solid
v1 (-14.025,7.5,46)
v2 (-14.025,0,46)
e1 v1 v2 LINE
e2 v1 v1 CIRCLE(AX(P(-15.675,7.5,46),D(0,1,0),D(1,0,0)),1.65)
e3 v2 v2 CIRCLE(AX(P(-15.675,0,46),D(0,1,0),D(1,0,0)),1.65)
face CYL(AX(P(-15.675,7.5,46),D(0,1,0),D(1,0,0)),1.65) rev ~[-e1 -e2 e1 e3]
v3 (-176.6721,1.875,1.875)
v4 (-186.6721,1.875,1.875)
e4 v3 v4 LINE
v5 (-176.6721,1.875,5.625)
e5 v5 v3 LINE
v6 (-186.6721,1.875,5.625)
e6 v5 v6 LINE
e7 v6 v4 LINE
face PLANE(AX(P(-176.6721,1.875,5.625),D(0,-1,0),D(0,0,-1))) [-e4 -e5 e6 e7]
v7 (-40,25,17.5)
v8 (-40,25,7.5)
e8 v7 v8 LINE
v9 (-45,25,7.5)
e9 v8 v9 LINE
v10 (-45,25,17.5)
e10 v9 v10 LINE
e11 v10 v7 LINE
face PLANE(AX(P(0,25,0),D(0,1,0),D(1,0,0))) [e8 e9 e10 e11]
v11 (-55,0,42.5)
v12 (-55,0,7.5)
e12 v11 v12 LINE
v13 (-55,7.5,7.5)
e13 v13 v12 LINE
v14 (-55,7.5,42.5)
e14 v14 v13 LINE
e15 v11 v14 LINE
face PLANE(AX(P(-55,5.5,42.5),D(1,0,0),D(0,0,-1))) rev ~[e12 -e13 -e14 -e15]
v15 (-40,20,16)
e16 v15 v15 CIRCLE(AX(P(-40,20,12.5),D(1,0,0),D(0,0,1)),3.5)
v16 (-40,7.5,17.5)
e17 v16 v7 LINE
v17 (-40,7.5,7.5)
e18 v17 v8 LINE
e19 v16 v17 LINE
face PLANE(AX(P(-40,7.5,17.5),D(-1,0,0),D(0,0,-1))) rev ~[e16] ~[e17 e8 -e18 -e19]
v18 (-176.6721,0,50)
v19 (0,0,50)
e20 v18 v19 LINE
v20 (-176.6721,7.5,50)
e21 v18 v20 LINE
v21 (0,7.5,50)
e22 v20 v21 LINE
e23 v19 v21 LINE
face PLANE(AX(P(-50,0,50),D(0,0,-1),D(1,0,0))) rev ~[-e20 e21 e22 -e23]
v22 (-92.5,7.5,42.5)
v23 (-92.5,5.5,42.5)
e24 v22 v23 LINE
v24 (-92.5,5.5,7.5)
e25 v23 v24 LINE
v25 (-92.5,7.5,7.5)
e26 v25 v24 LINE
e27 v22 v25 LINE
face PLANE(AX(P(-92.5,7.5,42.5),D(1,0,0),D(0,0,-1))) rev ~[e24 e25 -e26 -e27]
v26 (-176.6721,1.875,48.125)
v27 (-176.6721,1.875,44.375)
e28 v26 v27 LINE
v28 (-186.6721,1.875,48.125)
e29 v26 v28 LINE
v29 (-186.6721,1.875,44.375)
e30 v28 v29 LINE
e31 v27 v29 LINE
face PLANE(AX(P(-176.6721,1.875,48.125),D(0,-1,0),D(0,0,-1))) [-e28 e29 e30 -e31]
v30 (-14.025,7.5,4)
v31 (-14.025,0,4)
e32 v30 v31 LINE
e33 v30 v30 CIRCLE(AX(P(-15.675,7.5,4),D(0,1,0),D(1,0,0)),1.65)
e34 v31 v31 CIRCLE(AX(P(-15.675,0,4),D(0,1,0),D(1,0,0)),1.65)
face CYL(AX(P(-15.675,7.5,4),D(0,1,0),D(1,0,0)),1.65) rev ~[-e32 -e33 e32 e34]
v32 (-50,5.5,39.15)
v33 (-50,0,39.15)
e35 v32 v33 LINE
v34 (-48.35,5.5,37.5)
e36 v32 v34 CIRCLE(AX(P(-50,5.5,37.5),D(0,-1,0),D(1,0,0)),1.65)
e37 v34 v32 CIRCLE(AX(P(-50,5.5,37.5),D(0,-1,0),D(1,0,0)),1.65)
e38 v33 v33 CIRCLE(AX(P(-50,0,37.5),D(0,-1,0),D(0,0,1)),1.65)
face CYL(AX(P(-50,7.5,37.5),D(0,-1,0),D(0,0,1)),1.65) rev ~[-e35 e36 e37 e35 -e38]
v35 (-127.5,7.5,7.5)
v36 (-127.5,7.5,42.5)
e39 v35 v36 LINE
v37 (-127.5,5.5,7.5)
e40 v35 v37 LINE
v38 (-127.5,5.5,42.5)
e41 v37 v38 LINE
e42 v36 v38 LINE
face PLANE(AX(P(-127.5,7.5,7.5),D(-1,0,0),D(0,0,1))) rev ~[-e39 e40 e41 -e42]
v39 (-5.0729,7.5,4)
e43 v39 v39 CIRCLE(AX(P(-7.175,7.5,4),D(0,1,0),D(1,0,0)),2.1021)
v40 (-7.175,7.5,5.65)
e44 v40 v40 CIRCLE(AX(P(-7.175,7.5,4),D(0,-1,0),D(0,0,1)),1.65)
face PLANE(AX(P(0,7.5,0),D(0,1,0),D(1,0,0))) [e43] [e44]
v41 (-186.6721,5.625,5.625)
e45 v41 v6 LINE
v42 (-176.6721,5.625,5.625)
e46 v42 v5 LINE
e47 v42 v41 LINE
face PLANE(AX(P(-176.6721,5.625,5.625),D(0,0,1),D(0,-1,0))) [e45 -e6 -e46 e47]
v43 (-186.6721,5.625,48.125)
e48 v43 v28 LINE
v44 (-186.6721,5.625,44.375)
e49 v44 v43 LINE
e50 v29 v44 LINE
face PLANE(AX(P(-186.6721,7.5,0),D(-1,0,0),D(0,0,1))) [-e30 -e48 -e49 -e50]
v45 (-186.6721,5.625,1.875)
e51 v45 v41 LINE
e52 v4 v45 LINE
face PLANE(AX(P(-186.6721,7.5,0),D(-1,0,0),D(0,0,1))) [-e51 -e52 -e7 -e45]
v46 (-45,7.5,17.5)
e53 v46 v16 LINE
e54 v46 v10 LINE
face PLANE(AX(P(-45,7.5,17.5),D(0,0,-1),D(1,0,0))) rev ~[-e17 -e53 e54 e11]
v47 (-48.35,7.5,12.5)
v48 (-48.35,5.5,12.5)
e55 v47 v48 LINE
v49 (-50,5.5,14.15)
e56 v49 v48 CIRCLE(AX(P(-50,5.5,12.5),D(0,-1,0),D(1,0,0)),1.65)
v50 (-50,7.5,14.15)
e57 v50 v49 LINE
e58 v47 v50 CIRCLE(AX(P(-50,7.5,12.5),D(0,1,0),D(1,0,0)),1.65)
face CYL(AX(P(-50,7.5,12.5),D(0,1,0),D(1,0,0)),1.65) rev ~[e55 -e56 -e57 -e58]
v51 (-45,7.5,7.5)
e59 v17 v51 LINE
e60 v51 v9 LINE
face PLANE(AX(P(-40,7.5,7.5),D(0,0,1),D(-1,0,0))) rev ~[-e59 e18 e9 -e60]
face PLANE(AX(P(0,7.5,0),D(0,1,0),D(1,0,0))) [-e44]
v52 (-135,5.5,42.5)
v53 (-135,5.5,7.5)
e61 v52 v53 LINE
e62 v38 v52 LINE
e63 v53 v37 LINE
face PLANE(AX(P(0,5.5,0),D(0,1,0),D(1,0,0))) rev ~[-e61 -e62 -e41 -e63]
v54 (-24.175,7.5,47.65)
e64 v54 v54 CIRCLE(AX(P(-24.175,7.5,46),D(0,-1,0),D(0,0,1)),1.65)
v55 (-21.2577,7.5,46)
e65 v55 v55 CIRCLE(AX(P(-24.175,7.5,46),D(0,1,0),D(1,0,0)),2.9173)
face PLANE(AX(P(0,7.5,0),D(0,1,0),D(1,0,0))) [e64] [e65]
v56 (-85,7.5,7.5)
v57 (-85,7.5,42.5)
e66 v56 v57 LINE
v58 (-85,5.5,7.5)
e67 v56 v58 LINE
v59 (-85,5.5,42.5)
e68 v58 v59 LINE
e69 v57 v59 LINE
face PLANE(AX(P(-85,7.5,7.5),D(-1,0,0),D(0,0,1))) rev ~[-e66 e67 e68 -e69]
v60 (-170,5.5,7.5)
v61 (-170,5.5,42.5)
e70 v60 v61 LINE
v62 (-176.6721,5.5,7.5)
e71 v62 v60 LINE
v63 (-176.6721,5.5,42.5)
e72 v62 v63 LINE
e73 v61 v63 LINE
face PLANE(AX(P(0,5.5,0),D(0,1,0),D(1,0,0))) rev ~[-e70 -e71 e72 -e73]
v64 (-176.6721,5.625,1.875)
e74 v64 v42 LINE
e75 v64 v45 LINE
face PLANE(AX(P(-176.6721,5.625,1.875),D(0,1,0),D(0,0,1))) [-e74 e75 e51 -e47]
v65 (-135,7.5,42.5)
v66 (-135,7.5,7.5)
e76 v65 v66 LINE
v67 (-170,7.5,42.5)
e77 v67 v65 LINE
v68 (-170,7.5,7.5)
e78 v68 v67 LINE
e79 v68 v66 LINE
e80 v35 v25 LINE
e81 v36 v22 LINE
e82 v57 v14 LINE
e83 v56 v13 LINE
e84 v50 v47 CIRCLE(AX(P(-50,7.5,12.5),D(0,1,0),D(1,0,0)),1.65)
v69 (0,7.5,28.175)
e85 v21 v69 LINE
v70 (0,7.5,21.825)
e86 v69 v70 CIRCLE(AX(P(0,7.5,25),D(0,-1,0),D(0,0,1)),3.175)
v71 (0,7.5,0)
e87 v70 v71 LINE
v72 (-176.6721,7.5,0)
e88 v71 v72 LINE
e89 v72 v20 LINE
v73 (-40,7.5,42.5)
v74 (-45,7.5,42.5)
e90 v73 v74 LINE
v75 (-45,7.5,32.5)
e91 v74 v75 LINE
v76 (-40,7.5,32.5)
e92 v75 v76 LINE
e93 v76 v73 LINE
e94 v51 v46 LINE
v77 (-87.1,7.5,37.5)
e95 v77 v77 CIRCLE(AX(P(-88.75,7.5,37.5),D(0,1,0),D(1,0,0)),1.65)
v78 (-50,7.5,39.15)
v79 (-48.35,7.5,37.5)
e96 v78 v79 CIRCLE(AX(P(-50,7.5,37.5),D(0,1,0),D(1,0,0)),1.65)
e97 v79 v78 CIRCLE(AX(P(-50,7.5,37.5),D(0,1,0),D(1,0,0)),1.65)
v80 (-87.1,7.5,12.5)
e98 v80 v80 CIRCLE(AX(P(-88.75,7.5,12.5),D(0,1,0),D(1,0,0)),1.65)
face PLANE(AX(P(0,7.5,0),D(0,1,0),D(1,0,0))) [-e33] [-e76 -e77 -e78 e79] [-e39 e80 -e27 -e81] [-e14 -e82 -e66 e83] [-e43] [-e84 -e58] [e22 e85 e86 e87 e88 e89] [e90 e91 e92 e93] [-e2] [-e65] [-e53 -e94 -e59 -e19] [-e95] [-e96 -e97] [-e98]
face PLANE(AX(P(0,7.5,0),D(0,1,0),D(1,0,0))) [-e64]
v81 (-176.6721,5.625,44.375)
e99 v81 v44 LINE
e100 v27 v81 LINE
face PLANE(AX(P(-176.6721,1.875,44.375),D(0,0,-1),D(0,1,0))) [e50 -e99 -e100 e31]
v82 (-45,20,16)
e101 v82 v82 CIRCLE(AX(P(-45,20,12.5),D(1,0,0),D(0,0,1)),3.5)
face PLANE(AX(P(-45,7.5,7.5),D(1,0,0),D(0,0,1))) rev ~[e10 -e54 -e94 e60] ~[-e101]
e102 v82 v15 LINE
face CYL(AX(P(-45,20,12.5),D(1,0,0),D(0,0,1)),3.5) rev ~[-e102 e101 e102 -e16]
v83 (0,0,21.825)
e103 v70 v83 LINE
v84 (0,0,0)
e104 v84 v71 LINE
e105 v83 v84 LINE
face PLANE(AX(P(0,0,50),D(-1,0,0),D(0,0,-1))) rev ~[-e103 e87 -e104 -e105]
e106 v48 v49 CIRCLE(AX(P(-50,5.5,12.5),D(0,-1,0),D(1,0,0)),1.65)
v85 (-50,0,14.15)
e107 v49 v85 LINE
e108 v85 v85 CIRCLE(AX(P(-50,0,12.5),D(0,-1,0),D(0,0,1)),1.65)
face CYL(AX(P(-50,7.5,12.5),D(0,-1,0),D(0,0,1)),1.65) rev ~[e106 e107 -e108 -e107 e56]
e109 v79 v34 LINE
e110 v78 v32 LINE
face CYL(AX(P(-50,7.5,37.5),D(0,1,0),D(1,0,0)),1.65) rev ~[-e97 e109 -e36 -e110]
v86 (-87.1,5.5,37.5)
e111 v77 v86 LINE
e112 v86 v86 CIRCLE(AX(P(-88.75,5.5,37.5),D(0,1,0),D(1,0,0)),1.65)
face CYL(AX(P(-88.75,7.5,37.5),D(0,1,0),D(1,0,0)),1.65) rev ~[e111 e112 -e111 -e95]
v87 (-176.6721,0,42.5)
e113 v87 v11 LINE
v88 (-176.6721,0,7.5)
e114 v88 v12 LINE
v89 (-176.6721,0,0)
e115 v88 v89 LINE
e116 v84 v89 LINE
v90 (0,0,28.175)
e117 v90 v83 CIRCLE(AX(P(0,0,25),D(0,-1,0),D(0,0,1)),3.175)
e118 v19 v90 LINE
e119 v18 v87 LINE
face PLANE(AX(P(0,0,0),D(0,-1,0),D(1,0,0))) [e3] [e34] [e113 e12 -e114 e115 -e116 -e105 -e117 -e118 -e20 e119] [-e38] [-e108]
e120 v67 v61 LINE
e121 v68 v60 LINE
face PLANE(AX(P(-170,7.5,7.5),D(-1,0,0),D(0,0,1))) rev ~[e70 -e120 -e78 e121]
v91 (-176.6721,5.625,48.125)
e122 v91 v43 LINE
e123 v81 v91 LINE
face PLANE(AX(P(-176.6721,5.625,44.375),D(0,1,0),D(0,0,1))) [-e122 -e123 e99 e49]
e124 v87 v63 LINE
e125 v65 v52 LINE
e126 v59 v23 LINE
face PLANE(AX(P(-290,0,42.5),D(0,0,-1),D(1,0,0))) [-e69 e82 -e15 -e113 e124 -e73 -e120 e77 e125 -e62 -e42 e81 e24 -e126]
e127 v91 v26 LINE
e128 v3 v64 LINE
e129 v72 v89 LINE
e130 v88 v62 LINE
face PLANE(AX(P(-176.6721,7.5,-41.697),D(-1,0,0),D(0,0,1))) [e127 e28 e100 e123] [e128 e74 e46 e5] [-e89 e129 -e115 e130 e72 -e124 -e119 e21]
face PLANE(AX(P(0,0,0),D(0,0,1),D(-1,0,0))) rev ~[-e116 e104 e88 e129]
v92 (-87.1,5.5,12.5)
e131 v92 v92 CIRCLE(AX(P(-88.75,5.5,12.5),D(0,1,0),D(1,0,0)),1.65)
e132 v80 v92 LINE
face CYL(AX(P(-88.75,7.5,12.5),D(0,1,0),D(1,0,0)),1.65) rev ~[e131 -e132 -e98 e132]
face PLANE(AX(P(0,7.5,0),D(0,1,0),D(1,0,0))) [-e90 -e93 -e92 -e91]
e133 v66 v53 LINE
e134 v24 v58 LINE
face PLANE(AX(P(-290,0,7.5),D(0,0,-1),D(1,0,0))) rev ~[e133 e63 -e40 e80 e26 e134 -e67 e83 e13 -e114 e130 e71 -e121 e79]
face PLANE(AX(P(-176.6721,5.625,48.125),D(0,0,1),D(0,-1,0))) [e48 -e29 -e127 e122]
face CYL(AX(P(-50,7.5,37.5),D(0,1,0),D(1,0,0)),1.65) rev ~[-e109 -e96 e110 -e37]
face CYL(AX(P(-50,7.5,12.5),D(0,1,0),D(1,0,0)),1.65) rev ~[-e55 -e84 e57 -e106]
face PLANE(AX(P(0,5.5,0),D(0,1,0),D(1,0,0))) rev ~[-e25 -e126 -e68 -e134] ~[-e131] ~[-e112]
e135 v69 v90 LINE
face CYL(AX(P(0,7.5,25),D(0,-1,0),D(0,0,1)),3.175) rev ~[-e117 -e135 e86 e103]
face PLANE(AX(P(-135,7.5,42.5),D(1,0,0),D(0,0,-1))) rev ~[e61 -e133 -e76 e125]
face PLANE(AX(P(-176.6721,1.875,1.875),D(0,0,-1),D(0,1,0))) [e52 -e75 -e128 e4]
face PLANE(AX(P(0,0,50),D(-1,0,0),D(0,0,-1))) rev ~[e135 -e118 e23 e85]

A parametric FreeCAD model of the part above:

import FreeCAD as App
import Part
import Sketcher


def edges_at(feature, points):
    """Names of the edges that pass closest to the given points."""
    edges = feature.Shape.Edges
    near = lambda p: min(range(len(edges)), key=lambda i: edges[i].distToShape(Part.Vertex(*p))[0])
    return sorted({f"Edge{near(p) + 1}" for p in points})


def add_polygon(sketch, points):
    """Adds a closed chain of lines whose ends are joined by coincident constraints."""
    first, n = sketch.GeometryCount, len(points)
    for a, b in zip(points, points[1:] + points[:1]):
        sketch.addGeometry(Part.LineSegment(App.Vector(*a, 0), App.Vector(*b, 0)), False)
    for i in range(n):
        sketch.addConstraint(Sketcher.Constraint("Coincident", first + i, 2, first + (i + 1) % n, 1))

doc = App.newDocument("Part")
body = doc.addObject("PartDesign::Body", "Body")

# Sketch on XZ plane
sketch1 = doc.addObject("Sketcher::SketchObject", "Sketch")
body.addObject(sketch1)
sketch1.AttachmentSupport = (doc.XZ_Plane, [""])
sketch1.MapMode = "FlatFace"
add_polygon(sketch1, [(0, 50), (0, 0), (-290, 0), (-290, 8), (-50, 8), (-50, 42), (-290, 42), (-290, 50)])  # lines 0-7
sketch1.addConstraint(Sketcher.Constraint("Vertical", 0))
sketch1.addConstraint(Sketcher.Constraint("Horizontal", 1))
sketch1.addConstraint(Sketcher.Constraint("Vertical", 2))
sketch1.addConstraint(Sketcher.Constraint("Horizontal", 3))
sketch1.addConstraint(Sketcher.Constraint("Vertical", 4))
sketch1.addConstraint(Sketcher.Constraint("Horizontal", 5))
sketch1.addConstraint(Sketcher.Constraint("Vertical", 6))
sketch1.addConstraint(Sketcher.Constraint("Horizontal", 7))
sketch1.addConstraint(Sketcher.Constraint("Coincident", 0, 2, -1, 1))
sketch1.addConstraint(Sketcher.Constraint("Vertical", 2, 2, 5, 2))
sketch1.addConstraint(Sketcher.Constraint("Equal", 2, 6))
sketch1.addConstraint(Sketcher.Constraint("DistanceX", 3, 1, 3, 2, 240.0))
sketch1.addConstraint(Sketcher.Constraint("DistanceY", 0, 2, 0, 1, 50.0))
sketch1.addConstraint(Sketcher.Constraint("DistanceY", 2, 1, 2, 2, 7.5))
sketch1.addConstraint(Sketcher.Constraint("DistanceX", 3, 2, -1, 1, 50.0))
pad1 = doc.addObject("PartDesign::Pad", "Pad")
body.addObject(pad1)
pad1.Profile = sketch1
pad1.Length = 7.5
pad1.Reversed = True

# Sketch on XZ plane
sketch2 = doc.addObject("Sketcher::SketchObject", "Sketch001")
body.addObject(sketch2)
sketch2.AttachmentSupport = (doc.XZ_Plane, [""])
sketch2.MapMode = "FlatFace"
sketch2.AttachmentOffset = App.Placement(App.Vector(0, 0, -7.5), App.Rotation())
sketch2.addGeometry(Part.Circle(App.Vector(0, 25, 0), App.Vector(0, 0, 1), 3.2), False)
sketch2.addConstraint(Sketcher.Constraint("PointOnObject", 0, 3, -2))
sketch2.addConstraint(Sketcher.Constraint("Diameter", 0, 6.35))
sketch2.addConstraint(Sketcher.Constraint("DistanceY", -1, 1, 0, 3, 25.0))
doc.recompute()
hole = doc.addObject("PartDesign::Hole", "Hole")
body.addObject(hole)
hole.Profile = sketch2
hole.ThreadType = "None"
hole.Diameter = 6.35
hole.DepthType = "ThroughAll"
hole.Reversed = True

# Sketch on XZ plane
sketch3 = doc.addObject("Sketcher::SketchObject", "Sketch002")
body.addObject(sketch3)
sketch3.AttachmentSupport = (doc.XZ_Plane, [""])
sketch3.MapMode = "FlatFace"
sketch3.AttachmentOffset = App.Placement(App.Vector(0, 0, -7.5), App.Rotation())
sketch3.addGeometry(Part.Circle(App.Vector(-7.2, 4, 0), App.Vector(0, 0, 1), 1.6), False)
sketch3.addGeometry(Part.Circle(App.Vector(-24.2, 46, 0), App.Vector(0, 0, 1), 1.6), False)
sketch3.addConstraint(Sketcher.Constraint("Equal", 0, 1))
sketch3.addConstraint(Sketcher.Constraint("Diameter", 0, 3.3))
sketch3.addConstraint(Sketcher.Constraint("DistanceY", -1, 1, 0, 3, 4.0))
sketch3.addConstraint(Sketcher.Constraint("DistanceY", -1, 1, 1, 3, 46.0))
sketch3.addConstraint(Sketcher.Constraint("DistanceX", 1, 3, 0, 3, 17.0))
sketch3.addConstraint(Sketcher.Constraint("DistanceX", 0, 3, -1, 1, 7.175))
doc.recompute()
hole2 = doc.addObject("PartDesign::Hole", "Hole001")
body.addObject(hole2)
hole2.Profile = sketch3
hole2.ThreadType = "None"
hole2.Diameter = 3.3
hole2.DepthType = "ThroughAll"
hole2.Reversed = True

# Sketch on XZ plane
sketch4 = doc.addObject("Sketcher::SketchObject", "Sketch003")
body.addObject(sketch4)
sketch4.AttachmentSupport = (doc.XZ_Plane, [""])
sketch4.MapMode = "FlatFace"
sketch4.AttachmentOffset = App.Placement(App.Vector(0, 0, -7.5), App.Rotation())
add_polygon(sketch4, [(-40, 32), (-45, 32), (-45, 42), (-40, 42)])  # lines 0-3
sketch4.addConstraint(Sketcher.Constraint("Horizontal", 0))
sketch4.addConstraint(Sketcher.Constraint("Vertical", 1))
sketch4.addConstraint(Sketcher.Constraint("Horizontal", 2))
sketch4.addConstraint(Sketcher.Constraint("Vertical", 3))
sketch4.addConstraint(Sketcher.Constraint("DistanceX", 0, 2, 0, 1, 5.0))
sketch4.addConstraint(Sketcher.Constraint("DistanceY", 1, 1, 1, 2, 10.0))
sketch4.addConstraint(Sketcher.Constraint("DistanceX", 0, 2, -1, 1, 45.0))
sketch4.addConstraint(Sketcher.Constraint("DistanceY", -1, 1, 0, 2, 32.5))
pad2 = doc.addObject("PartDesign::Pad", "Pad001")
body.addObject(pad2)
pad2.Profile = sketch4
pad2.Length = 17.5
pad2.Reversed = True

# Sketch on XZ plane
sketch5 = doc.addObject("Sketcher::SketchObject", "Sketch004")
body.addObject(sketch5)
sketch5.AttachmentSupport = (doc.XZ_Plane, [""])
sketch5.MapMode = "FlatFace"
sketch5.AttachmentOffset = App.Placement(App.Vector(0, 0, -7.5), App.Rotation())
add_polygon(sketch5, [(-85, 42), (-85, 8), (-92, 8), (-92, 42)])  # lines 0-3
add_polygon(sketch5, [(-128, 42), (-128, 8), (-135, 8), (-135, 42)])  # lines 4-7
add_polygon(sketch5, [(-212, 8), (-220, 8), (-220, 42), (-212, 42)])  # lines 8-11
add_polygon(sketch5, [(-170, 8), (-178, 8), (-178, 42), (-170, 42)])  # lines 12-15
sketch5.addConstraint(Sketcher.Constraint("Vertical", 0))
sketch5.addConstraint(Sketcher.Constraint("Horizontal", 1))
sketch5.addConstraint(Sketcher.Constraint("Vertical", 2))
sketch5.addConstraint(Sketcher.Constraint("Horizontal", 3))
sketch5.addConstraint(Sketcher.Constraint("Vertical", 4))
sketch5.addConstraint(Sketcher.Constraint("Horizontal", 5))
sketch5.addConstraint(Sketcher.Constraint("Vertical", 6))
sketch5.addConstraint(Sketcher.Constraint("Horizontal", 7))
sketch5.addConstraint(Sketcher.Constraint("Horizontal", 8))
sketch5.addConstraint(Sketcher.Constraint("Vertical", 9))
sketch5.addConstraint(Sketcher.Constraint("Horizontal", 10))
sketch5.addConstraint(Sketcher.Constraint("Vertical", 11))
sketch5.addConstraint(Sketcher.Constraint("Horizontal", 12))
sketch5.addConstraint(Sketcher.Constraint("Vertical", 13))
sketch5.addConstraint(Sketcher.Constraint("Horizontal", 14))
sketch5.addConstraint(Sketcher.Constraint("Vertical", 15))
sketch5.addConstraint(Sketcher.Constraint("Horizontal", 1, 2, 4, 2))
sketch5.addConstraint(Sketcher.Constraint("Horizontal", 3, 2, 6, 2))
sketch5.addConstraint(Sketcher.Constraint("Horizontal", 5, 2, 8, 2))
sketch5.addConstraint(Sketcher.Constraint("Horizontal", 7, 2, 9, 2))
sketch5.addConstraint(Sketcher.Constraint("Horizontal", 11, 2, 12, 2))
sketch5.addConstraint(Sketcher.Constraint("Horizontal", 10, 2, 13, 2))
sketch5.addConstraint(Sketcher.Constraint("Equal", 3, 5))
sketch5.addConstraint(Sketcher.Constraint("Equal", 7, 8))
sketch5.addConstraint(Sketcher.Constraint("Equal", 10, 12))
sketch5.addConstraint(Sketcher.Constraint("DistanceY", 0, 2, 0, 1, 35.0))
sketch5.addConstraint(Sketcher.Constraint("DistanceX", 4, 2, 1, 2, 35.0))
sketch5.addConstraint(Sketcher.Constraint("DistanceX", 11, 2, 12, 2, 35.0))
sketch5.addConstraint(Sketcher.Constraint("DistanceX", 14, 2, 6, 2, 35.0))
sketch5.addConstraint(Sketcher.Constraint("DistanceX", 1, 2, 1, 1, 7.5))
sketch5.addConstraint(Sketcher.Constraint("DistanceX", 0, 2, -1, 1, 85.0))
sketch5.addConstraint(Sketcher.Constraint("DistanceY", -1, 1, 0, 2, 7.5))
pad3 = doc.addObject("PartDesign::Pad", "Pad002")
body.addObject(pad3)
pad3.Profile = sketch5
pad3.Length = 2

# Sketch on XZ plane
sketch6 = doc.addObject("Sketcher::SketchObject", "Sketch005")
body.addObject(sketch6)
sketch6.AttachmentSupport = (doc.XZ_Plane, [""])
sketch6.MapMode = "FlatFace"
sketch6.AttachmentOffset = App.Placement(App.Vector(0, 0, -7.5), App.Rotation())
add_polygon(sketch6, [(-280, 0), (-290, 0), (-290, 50), (-280, 50)])  # lines 0-3
sketch6.addConstraint(Sketcher.Constraint("Horizontal", 0))
sketch6.addConstraint(Sketcher.Constraint("Vertical", 1))
sketch6.addConstraint(Sketcher.Constraint("Horizontal", 2))
sketch6.addConstraint(Sketcher.Constraint("Vertical", 3))
sketch6.addConstraint(Sketcher.Constraint("PointOnObject", 0, 2, -1))
sketch6.addConstraint(Sketcher.Constraint("DistanceX", 0, 2, 0, 1, 10.0))
sketch6.addConstraint(Sketcher.Constraint("DistanceY", 1, 1, 1, 2, 50.0))
sketch6.addConstraint(Sketcher.Constraint("DistanceX", 0, 2, -1, 1, 290.0))
pocket1 = doc.addObject("PartDesign::Pocket", "Pocket")
body.addObject(pocket1)
pocket1.Profile = sketch6
pocket1.Length = 7.5
pocket1.Reversed = True

# Sketch on YZ plane
sketch7 = doc.addObject("Sketcher::SketchObject", "Sketch006")
body.addObject(sketch7)
sketch7.AttachmentSupport = (doc.YZ_Plane, [""])
sketch7.MapMode = "FlatFace"
sketch7.AttachmentOffset = App.Placement(App.Vector(0, 0, -280), App.Rotation())
add_polygon(sketch7, [(8, 75), (8, -25), (-2, -25), (-2, 75)])  # lines 0-3
sketch7.addConstraint(Sketcher.Constraint("Vertical", 0))
sketch7.addConstraint(Sketcher.Constraint("Horizontal", 1))
sketch7.addConstraint(Sketcher.Constraint("Vertical", 2))
sketch7.addConstraint(Sketcher.Constraint("Horizontal", 3))
sketch7.addConstraint(Sketcher.Constraint("DistanceX", 1, 2, 1, 1, 10.0))
sketch7.addConstraint(Sketcher.Constraint("DistanceY", 0, 2, 0, 1, 100.0))
sketch7.addConstraint(Sketcher.Constraint("DistanceY", 0, 2, -1, 1, 25.0))
sketch7.addConstraint(Sketcher.Constraint("DistanceX", -1, 1, 0, 2, 7.5))
pad4 = doc.addObject("PartDesign::Pad", "Pad003")
body.addObject(pad4)
pad4.Profile = sketch7
pad4.Length = 7.5
pad4.Reversed = True

# Sketch on YZ plane
sketch8 = doc.addObject("Sketcher::SketchObject", "Sketch007")
body.addObject(sketch8)
sketch8.AttachmentSupport = (doc.YZ_Plane, [""])
sketch8.MapMode = "FlatFace"
sketch8.AttachmentOffset = App.Placement(App.Vector(0, 0, -287.5), App.Rotation())
add_polygon(sketch8, [(-2, 75), (8, 75), (8, 68), (-2, 68)])  # lines 0-3
add_polygon(sketch8, [(-2, -18), (8, -18), (8, -25), (-2, -25)])  # lines 4-7
sketch8.addConstraint(Sketcher.Constraint("Horizontal", 0))
sketch8.addConstraint(Sketcher.Constraint("Vertical", 1))
sketch8.addConstraint(Sketcher.Constraint("Horizontal", 2))
sketch8.addConstraint(Sketcher.Constraint("Vertical", 3))
sketch8.addConstraint(Sketcher.Constraint("Horizontal", 4))
sketch8.addConstraint(Sketcher.Constraint("Vertical", 5))
sketch8.addConstraint(Sketcher.Constraint("Horizontal", 6))
sketch8.addConstraint(Sketcher.Constraint("Vertical", 7))
sketch8.addConstraint(Sketcher.Constraint("Vertical", 1, 2, 4, 2))
sketch8.addConstraint(Sketcher.Constraint("Vertical", 3, 2, 6, 2))
sketch8.addConstraint(Sketcher.Constraint("Equal", 3, 5))
sketch8.addConstraint(Sketcher.Constraint("DistanceY", 1, 2, 1, 1, 7.5))
sketch8.addConstraint(Sketcher.Constraint("DistanceX", -1, 1, 0, 2, 7.5))
sketch8.addConstraint(Sketcher.Constraint("DistanceX", 0, 1, 0, 2, 10.0))
sketch8.addConstraint(Sketcher.Constraint("DistanceY", -1, 1, 0, 2, 75.0))
sketch8.addConstraint(Sketcher.Constraint("DistanceY", 5, 2, -1, 1, 25.0))
pad5 = doc.addObject("PartDesign::Pad", "Pad004")
body.addObject(pad5)
pad5.Profile = sketch8
pad5.Length = 25
pad5.Reversed = True

# Sketch on XY plane
sketch9 = doc.addObject("Sketcher::SketchObject", "Sketch008")
body.addObject(sketch9)
sketch9.AttachmentSupport = (doc.XY_Plane, [""])
sketch9.MapMode = "FlatFace"
sketch9.AttachmentOffset = App.Placement(App.Vector(0, 0, -17.5), App.Rotation())
add_polygon(sketch9, [(-293.7, -2.5), (-290.5, -2.5), (-290.5, -0.4), (-293.7, -0.4)])  # lines 0-3
sketch9.addConstraint(Sketcher.Constraint("Horizontal", 0))
sketch9.addConstraint(Sketcher.Constraint("Vertical", 1))
sketch9.addConstraint(Sketcher.Constraint("Horizontal", 2))
sketch9.addConstraint(Sketcher.Constraint("Vertical", 3))
sketch9.addConstraint(Sketcher.Constraint("DistanceX", 0, 1, 0, 2, 3.2))
sketch9.addConstraint(Sketcher.Constraint("DistanceY", 1, 1, 1, 2, 2.1))
sketch9.addConstraint(Sketcher.Constraint("DistanceX", 0, 2, -1, 1, 290.5))
sketch9.addConstraint(Sketcher.Constraint("DistanceY", 0, 2, -1, 1, 2.5))
pad6 = doc.addObject("PartDesign::Pad", "Pad005")
body.addObject(pad6)
pad6.Profile = sketch9
pad6.Length = 92.5

# Sketch on XY plane
sketch10 = doc.addObject("Sketcher::SketchObject", "Sketch009")
body.addObject(sketch10)
sketch10.AttachmentSupport = (doc.XY_Plane, [""])
sketch10.MapMode = "FlatFace"
sketch10.AttachmentOffset = App.Placement(App.Vector(0, 0, -17.5), App.Rotation())
sketch10.addGeometry(Part.Circle(App.Vector(-299.2, 2.9, 0), App.Vector(0, 0, 1), 2.1), False)
sketch10.addConstraint(Sketcher.Constraint("Diameter", 0, 4.25))
sketch10.addConstraint(Sketcher.Constraint("DistanceX", 0, 3, -1, 1, 299.2))
sketch10.addConstraint(Sketcher.Constraint("DistanceY", -1, 1, 0, 3, 2.9))
pocket2 = doc.addObject("PartDesign::Pocket", "Pocket001")
body.addObject(pocket2)
pocket2.Profile = sketch10
pocket2.Length = 241
pocket2.Midplane = True

# Sketch on XY plane
sketch11 = doc.addObject("Sketcher::SketchObject", "Sketch010")
body.addObject(sketch11)
sketch11.AttachmentSupport = (doc.XY_Plane, [""])
sketch11.MapMode = "FlatFace"
sketch11.AttachmentOffset = App.Placement(App.Vector(0, 0, -17.5), App.Rotation())
add_polygon(sketch11, [(-306.7, -2.5), (-304.2, -2.5), (-304.2, -1.5), (-306.7, -1.5)])  # lines 0-3
sketch11.addConstraint(Sketcher.Constraint("Horizontal", 0))
sketch11.addConstraint(Sketcher.Constraint("Vertical", 1))
sketch11.addConstraint(Sketcher.Constraint("Horizontal", 2))
sketch11.addConstraint(Sketcher.Constraint("Vertical", 3))
sketch11.addConstraint(Sketcher.Constraint("DistanceX", 0, 1, 0, 2, 2.5))
sketch11.addConstraint(Sketcher.Constraint("DistanceY", 0, 2, -1, 1, 2.5))
sketch11.addConstraint(Sketcher.Constraint("DistanceY", 1, 1, 1, 2, 0.96))
sketch11.addConstraint(Sketcher.Constraint("DistanceX", 0, 2, -1, 1, 304.2))
pad7 = doc.addObject("PartDesign::Pad", "Pad006")
body.addObject(pad7)
pad7.Profile = sketch11
pad7.Length = 91.25

# Sketch on XZ plane
sketch12 = doc.addObject("Sketcher::SketchObject", "Sketch011")
body.addObject(sketch12)
sketch12.AttachmentSupport = (doc.XZ_Plane, [""])
sketch12.MapMode = "FlatFace"
sketch12.AttachmentOffset = App.Placement(App.Vector(0, 0, 0.4), App.Rotation())
add_polygon(sketch12, [(-290.5, 12.5), (-293.7, 12.5), (-293.7, 18.9), (-290.5, 18.9)])  # lines 0-3
sketch12.addConstraint(Sketcher.Constraint("Horizontal", 0))
sketch12.addConstraint(Sketcher.Constraint("Vertical", 1))
sketch12.addConstraint(Sketcher.Constraint("Horizontal", 2))
sketch12.addConstraint(Sketcher.Constraint("Vertical", 3))
sketch12.addConstraint(Sketcher.Constraint("DistanceY", 1, 1, 1, 2, 6.35))
sketch12.addConstraint(Sketcher.Constraint("DistanceX", 0, 2, 0, 1, 3.2))
sketch12.addConstraint(Sketcher.Constraint("DistanceX", 0, 2, -1, 1, 293.7))
sketch12.addConstraint(Sketcher.Constraint("DistanceY", -1, 1, 0, 2, 12.5))
pad8 = doc.addObject("PartDesign::Pad", "Pad007")
body.addObject(pad8)
pad8.Profile = sketch12
pad8.Length = 3.8
pad8.Reversed = True

# Sketch on XZ plane
sketch13 = doc.addObject("Sketcher::SketchObject", "Sketch012")
body.addObject(sketch13)
sketch13.AttachmentSupport = (doc.XZ_Plane, [""])
sketch13.MapMode = "FlatFace"
sketch13.AttachmentOffset = App.Placement(App.Vector(0, 0, -7.5), App.Rotation())
add_polygon(sketch13, [(-285, -17.5), (-287.5, -17.5), (-287.5, 67.5), (-285, 67.5)])  # lines 0-3
sketch13.addConstraint(Sketcher.Constraint("Horizontal", 0))
sketch13.addConstraint(Sketcher.Constraint("Vertical", 1))
sketch13.addConstraint(Sketcher.Constraint("Horizontal", 2))
sketch13.addConstraint(Sketcher.Constraint("Vertical", 3))
sketch13.addConstraint(Sketcher.Constraint("DistanceX", 0, 2, 0, 1, 2.5))
sketch13.addConstraint(Sketcher.Constraint("DistanceY", 1, 1, 1, 2, 85.0))
sketch13.addConstraint(Sketcher.Constraint("DistanceX", 2, 2, -1, 1, 285.0))
sketch13.addConstraint(Sketcher.Constraint("DistanceY", 0, 2, -1, 1, 17.5))
pocket3 = doc.addObject("PartDesign::Pocket", "Pocket002")
body.addObject(pocket3)
pocket3.Profile = sketch13
pocket3.Length = 14.55
pocket3.Reversed = True

# Sketch on XZ plane
sketch14 = doc.addObject("Sketcher::SketchObject", "Sketch013")
body.addObject(sketch14)
sketch14.AttachmentSupport = (doc.XZ_Plane, [""])
sketch14.MapMode = "FlatFace"
sketch14.AttachmentOffset = App.Placement(App.Vector(0, 0, -7.5), App.Rotation())
add_polygon(sketch14, [(-312, -25), (-312, 75), (-307, 75), (-307, -25)])  # lines 0-3
sketch14.addConstraint(Sketcher.Constraint("Vertical", 0))
sketch14.addConstraint(Sketcher.Constraint("Horizontal", 1))
sketch14.addConstraint(Sketcher.Constraint("Vertical", 2))
sketch14.addConstraint(Sketcher.Constraint("Horizontal", 3))
sketch14.addConstraint(Sketcher.Constraint("DistanceY", 0, 1, 0, 2, 100.0))
sketch14.addConstraint(Sketcher.Constraint("DistanceY", -1, 1, 0, 2, 75.0))
sketch14.addConstraint(Sketcher.Constraint("DistanceX", 0, 2, -1, 1, 312.5))
sketch14.addConstraint(Sketcher.Constraint("DistanceX", 1, 1, 1, 2, 5.8512))
pocket4 = doc.addObject("PartDesign::Pocket", "Pocket003")
body.addObject(pocket4)
pocket4.Profile = sketch14
pocket4.Length = 14.55
pocket4.Reversed = True
doc.recompute()

fillet = doc.addObject("PartDesign::Fillet", "Fillet")
body.addObject(fillet)
fillet.Base = (pocket4, edges_at(pocket4, [(-301.325, 2.9, -17.5)]))
fillet.Radius = 0.1
doc.recompute()

fillet2 = doc.addObject("PartDesign::Fillet", "Fillet001")
body.addObject(fillet2)
fillet2.Base = (fillet, edges_at(fillet, [(-301.325, 2.9, 67.5)]))
fillet2.Radius = 0.1
doc.recompute()

fillet3 = doc.addObject("PartDesign::Fillet", "Fillet002")
body.addObject(fillet3)
fillet3.Base = (fillet2, edges_at(fillet2, [(-280, 2.5, 75)]))
fillet3.Radius = 3.25
doc.recompute()

fillet4 = doc.addObject("PartDesign::Fillet", "Fillet003")
body.addObject(fillet4)
fillet4.Base = (fillet3, edges_at(fillet3, [(-285, 2.5, 67.5)]))
fillet4.Radius = 3.25
doc.recompute()

fillet5 = doc.addObject("PartDesign::Fillet", "Fillet004")
body.addObject(fillet5)
fillet5.Base = (fillet4, edges_at(fillet4, [(-280, 2.5, -25)]))
fillet5.Radius = 3.25
doc.recompute()

fillet6 = doc.addObject("PartDesign::Fillet", "Fillet005")
body.addObject(fillet6)
fillet6.Base = (fillet5, edges_at(fillet5, [(-285, 2.5, -17.5)]))
fillet6.Radius = 3.25

# Sketch on XZ plane
sketch15 = doc.addObject("Sketcher::SketchObject", "Sketch014")
body.addObject(sketch15)
sketch15.AttachmentSupport = (doc.XZ_Plane, [""])
sketch15.MapMode = "FlatFace"
sketch15.AttachmentOffset = App.Placement(App.Vector(0, 0, -7.5), App.Rotation())
add_polygon(sketch15, [(-270, 8), (-280, 8), (-280, 42), (-270, 42)])  # lines 0-3
sketch15.addConstraint(Sketcher.Constraint("Horizontal", 0))
sketch15.addConstraint(Sketcher.Constraint("Vertical", 1))
sketch15.addConstraint(Sketcher.Constraint("Horizontal", 2))
sketch15.addConstraint(Sketcher.Constraint("Vertical", 3))
sketch15.addConstraint(Sketcher.Constraint("DistanceX", 0, 2, 0, 1, 10.0))
sketch15.addConstraint(Sketcher.Constraint("DistanceY", 1, 1, 1, 2, 35.0))
sketch15.addConstraint(Sketcher.Constraint("DistanceX", 0, 2, -1, 1, 280.0))
sketch15.addConstraint(Sketcher.Constraint("DistanceY", -1, 1, 0, 2, 7.5))
pad9 = doc.addObject("PartDesign::Pad", "Pad008")
body.addObject(pad9)
pad9.Profile = sketch15
pad9.Length = 2

# Sketch on XZ plane
sketch16 = doc.addObject("Sketcher::SketchObject", "Sketch015")
body.addObject(sketch16)
sketch16.AttachmentSupport = (doc.XZ_Plane, [""])
sketch16.MapMode = "FlatFace"
sketch16.AttachmentOffset = App.Placement(App.Vector(0, 0, -7.5), App.Rotation())
sketch16.addGeometry(Part.Circle(App.Vector(-275, 12.5, 0), App.Vector(0, 0, 1), 1.6), False)
sketch16.addGeometry(Part.Circle(App.Vector(-275, 37.5, 0), App.Vector(0, 0, 1), 1.6), False)
sketch16.addConstraint(Sketcher.Constraint("Equal", 0, 1))
sketch16.addConstraint(Sketcher.Constraint("Vertical", 0, 3, 1, 3))
sketch16.addConstraint(Sketcher.Constraint("Diameter", 0, 3.3))
sketch16.addConstraint(Sketcher.Constraint("DistanceX", 0, 3, -1, 1, 275.0))
sketch16.addConstraint(Sketcher.Constraint("DistanceY", 0, 3, 1, 3, 25.0))
sketch16.addConstraint(Sketcher.Constraint("DistanceY", -1, 1, 0, 3, 12.5))
doc.recompute()
hole3 = doc.addObject("PartDesign::Hole", "Hole002")
body.addObject(hole3)
hole3.Profile = sketch16
hole3.ThreadType = "None"
hole3.Diameter = 3.3
hole3.DepthType = "Dimension"
hole3.Depth = 15
hole3.DrillPoint = "Angled"
hole3.DrillPointAngle = 118
hole3.Reversed = True

# Sketch on XZ plane
sketch17 = doc.addObject("Sketcher::SketchObject", "Sketch016")
body.addObject(sketch17)
sketch17.AttachmentSupport = (doc.XZ_Plane, [""])
sketch17.MapMode = "FlatFace"
sketch17.AttachmentOffset = App.Placement(App.Vector(0, 0, -7.5), App.Rotation())
sketch17.addGeometry(Part.Circle(App.Vector(-216.2, 12.5, 0), App.Vector(0, 0, 1), 1.6), False)
sketch17.addGeometry(Part.Circle(App.Vector(-216.2, 37.5, 0), App.Vector(0, 0, 1), 1.6), False)
sketch17.addConstraint(Sketcher.Constraint("Equal", 0, 1))
sketch17.addConstraint(Sketcher.Constraint("Vertical", 0, 3, 1, 3))
sketch17.addConstraint(Sketcher.Constraint("Diameter", 0, 3.3))
sketch17.addConstraint(Sketcher.Constraint("DistanceY", 0, 3, 1, 3, 25.0))
sketch17.addConstraint(Sketcher.Constraint("DistanceY", -1, 1, 0, 3, 12.5))
sketch17.addConstraint(Sketcher.Constraint("DistanceX", 0, 3, -1, 1, 216.25))
doc.recompute()
hole4 = doc.addObject("PartDesign::Hole", "Hole003")
body.addObject(hole4)
hole4.Profile = sketch17
hole4.ThreadType = "None"
hole4.Diameter = 3.3
hole4.DepthType = "Dimension"
hole4.Depth = 15
hole4.DrillPoint = "Angled"
hole4.DrillPointAngle = 118
hole4.Reversed = True

# Sketch on YZ plane
sketch18 = doc.addObject("Sketcher::SketchObject", "Sketch017")
body.addObject(sketch18)
sketch18.AttachmentSupport = (doc.YZ_Plane, [""])
sketch18.MapMode = "FlatFace"
sketch18.AttachmentOffset = App.Placement(App.Vector(0, 0, -45), App.Rotation())
sketch18.addGeometry(Part.Circle(App.Vector(20, 37.5, 0), App.Vector(0, 0, 1), 3), False)
sketch18.addConstraint(Sketcher.Constraint("Diameter", 0, 6.0))
sketch18.addConstraint(Sketcher.Constraint("DistanceX", -1, 1, 0, 3, 20.0))
sketch18.addConstraint(Sketcher.Constraint("DistanceY", -1, 1, 0, 3, 37.5))
pocket5 = doc.addObject("PartDesign::Pocket", "Pocket004")
body.addObject(pocket5)
pocket5.Profile = sketch18
pocket5.Length = 20
pocket5.Reversed = True

# Sketch on XZ plane
sketch19 = doc.addObject("Sketcher::SketchObject", "Sketch018")
body.addObject(sketch19)
sketch19.AttachmentSupport = (doc.XZ_Plane, [""])
sketch19.MapMode = "FlatFace"
sketch19.AttachmentOffset = App.Placement(App.Vector(0, 0, -7.5), App.Rotation())
add_polygon(sketch19, [(-288, -18), (-307, -18), (-307, 68), (-288, 68)])  # lines 0-3
sketch19.addConstraint(Sketcher.Constraint("Horizontal", 0))
sketch19.addConstraint(Sketcher.Constraint("Vertical", 1))
sketch19.addConstraint(Sketcher.Constraint("Horizontal", 2))
sketch19.addConstraint(Sketcher.Constraint("Vertical", 3))
sketch19.addConstraint(Sketcher.Constraint("DistanceY", 1, 1, 1, 2, 85.0))
sketch19.addConstraint(Sketcher.Constraint("DistanceY", 0, 2, -1, 1, 17.5))
sketch19.addConstraint(Sketcher.Constraint("DistanceX", 2, 2, -1, 1, 288.25))
sketch19.addConstraint(Sketcher.Constraint("DistanceX", 0, 2, 0, 1, 18.3988))
pocket6 = doc.addObject("PartDesign::Pocket", "Pocket005")
body.addObject(pocket6)
pocket6.Profile = sketch19
pocket6.Length = 10
pocket6.Reversed = True

# Sketch on XZ plane
sketch20 = doc.addObject("Sketcher::SketchObject", "Sketch019")
body.addObject(sketch20)
sketch20.AttachmentSupport = (doc.XZ_Plane, [""])
sketch20.MapMode = "FlatFace"
sketch20.AttachmentOffset = App.Placement(App.Vector(0, 0, -7.5), App.Rotation())
add_polygon(sketch20, [(-280, 50), (-271, 50), (-271, 0), (-280, 0)])  # lines 0-3
add_polygon(sketch20, [(-219, 8), (-219, 42), (-213, 42), (-213, 8)])  # lines 4-7
sketch20.addConstraint(Sketcher.Constraint("Horizontal", 0))
sketch20.addConstraint(Sketcher.Constraint("Vertical", 1))
sketch20.addConstraint(Sketcher.Constraint("Horizontal", 2))
sketch20.addConstraint(Sketcher.Constraint("Vertical", 3))
sketch20.addConstraint(Sketcher.Constraint("Vertical", 4))
sketch20.addConstraint(Sketcher.Constraint("Horizontal", 5))
sketch20.addConstraint(Sketcher.Constraint("Vertical", 6))
sketch20.addConstraint(Sketcher.Constraint("Horizontal", 7))
sketch20.addConstraint(Sketcher.Constraint("PointOnObject", 1, 2, -1))
sketch20.addConstraint(Sketcher.Constraint("DistanceY", 1, 2, 1, 1, 50.0))
sketch20.addConstraint(Sketcher.Constraint("DistanceX", 2, 2, -1, 1, 280.0))
sketch20.addConstraint(Sketcher.Constraint("DistanceY", -1, 1, 4, 2, 42.5))
sketch20.addConstraint(Sketcher.Constraint("DistanceY", 4, 1, 4, 2, 34.216))
sketch20.addConstraint(Sketcher.Constraint("DistanceX", 0, 1, 0, 2, 9.4313))
sketch20.addConstraint(Sketcher.Constraint("DistanceX", 5, 1, 5, 2, 5.9946))
sketch20.addConstraint(Sketcher.Constraint("DistanceX", 4, 2, -1, 1, 219.302))
pad10 = doc.addObject("PartDesign::Pad", "Pad009")
body.addObject(pad10)
pad10.Profile = sketch20
pad10.Length = 2

# Sketch on XY plane
sketch21 = doc.addObject("Sketcher::SketchObject", "Sketch020")
body.addObject(sketch21)
sketch21.AttachmentSupport = (doc.XY_Plane, [""])
sketch21.MapMode = "FlatFace"
sketch21.AttachmentOffset = App.Placement(App.Vector(0, 0, -25), App.Rotation())
sketch21.addGeometry(Part.Circle(App.Vector(-299.2, 2.9, 0), App.Vector(0, 0, 1), 2.4), False)
sketch21.addGeometry(Part.Circle(App.Vector(-299.2, 2.9, 0), App.Vector(0, 0, 1), 2), False)
sketch21.addConstraint(Sketcher.Constraint("Coincident", 1, 3, 0, 3))
sketch21.addConstraint(Sketcher.Constraint("Diameter", 1, 4.0))
sketch21.addConstraint(Sketcher.Constraint("Diameter", 0, 4.8858))
sketch21.addConstraint(Sketcher.Constraint("DistanceX", 0, 3, -1, 1, 299.2))
sketch21.addConstraint(Sketcher.Constraint("DistanceY", -1, 1, 0, 3, 2.9))
pad11 = doc.addObject("PartDesign::Pad", "Pad010")
body.addObject(pad11)
pad11.Profile = sketch21
pad11.Length = 100

# Sketch on XZ plane
sketch22 = doc.addObject("Sketcher::SketchObject", "Sketch021")
body.addObject(sketch22)
sketch22.AttachmentSupport = (doc.XZ_Plane, [""])
sketch22.MapMode = "FlatFace"
sketch22.AttachmentOffset = App.Placement(App.Vector(0, 0, -7.5), App.Rotation())
add_polygon(sketch22, [(-307, 68), (-288, 68), (-288, -18), (-307, -18)])  # lines 0-3
sketch22.addConstraint(Sketcher.Constraint("Horizontal", 0))
sketch22.addConstraint(Sketcher.Constraint("Vertical", 1))
sketch22.addConstraint(Sketcher.Constraint("Horizontal", 2))
sketch22.addConstraint(Sketcher.Constraint("Vertical", 3))
sketch22.addConstraint(Sketcher.Constraint("DistanceY", 1, 2, 1, 1, 85.0))
sketch22.addConstraint(Sketcher.Constraint("DistanceY", -1, 1, 0, 2, 67.5))
sketch22.addConstraint(Sketcher.Constraint("DistanceX", 0, 2, -1, 1, 288.25))
sketch22.addConstraint(Sketcher.Constraint("DistanceX", 0, 1, 0, 2, 18.3988))
pocket7 = doc.addObject("PartDesign::Pocket", "Pocket006")
body.addObject(pocket7)
pocket7.Profile = sketch22
pocket7.Length = 100
pocket7.Reversed = True

# Sketch on XZ plane
sketch23 = doc.addObject("Sketcher::SketchObject", "Sketch022")
body.addObject(sketch23)
sketch23.AttachmentSupport = (doc.XZ_Plane, [""])
sketch23.MapMode = "FlatFace"
sketch23.AttachmentOffset = App.Placement(App.Vector(0, 0, -7.5), App.Rotation())
add_polygon(sketch23, [(-55, 42), (-50, 42), (-50, 8), (-55, 8)])  # lines 0-3
sketch23.addConstraint(Sketcher.Constraint("Horizontal", 0))
sketch23.addConstraint(Sketcher.Constraint("Vertical", 1))
sketch23.addConstraint(Sketcher.Constraint("Horizontal", 2))
sketch23.addConstraint(Sketcher.Constraint("Vertical", 3))
sketch23.addConstraint(Sketcher.Constraint("DistanceX", 0, 1, 0, 2, 5.0))
sketch23.addConstraint(Sketcher.Constraint("DistanceY", 1, 2, 1, 1, 35.0))
sketch23.addConstraint(Sketcher.Constraint("DistanceX", 0, 2, -1, 1, 50.0))
sketch23.addConstraint(Sketcher.Constraint("DistanceY", -1, 1, 0, 2, 42.5))
pad12 = doc.addObject("PartDesign::Pad", "Pad011")
body.addObject(pad12)
pad12.Profile = sketch23
pad12.Length = 2

# Sketch on XZ plane
sketch24 = doc.addObject("Sketcher::SketchObject", "Sketch023")
body.addObject(sketch24)
sketch24.AttachmentSupport = (doc.XZ_Plane, [""])
sketch24.MapMode = "FlatFace"
sketch24.AttachmentOffset = App.Placement(App.Vector(0, 0, -7.5), App.Rotation())
sketch24.addGeometry(Part.Circle(App.Vector(-50, 37.5, 0), App.Vector(0, 0, 1), 1.6), False)
sketch24.addGeometry(Part.Circle(App.Vector(-50, 12.5, 0), App.Vector(0, 0, 1), 1.6), False)
sketch24.addGeometry(Part.Circle(App.Vector(-88.8, 37.5, 0), App.Vector(0, 0, 1), 1.6), False)
sketch24.addGeometry(Part.Circle(App.Vector(-88.8, 12.5, 0), App.Vector(0, 0, 1), 1.6), False)
sketch24.addConstraint(Sketcher.Constraint("Equal", 0, 1))
sketch24.addConstraint(Sketcher.Constraint("Equal", 1, 2))
sketch24.addConstraint(Sketcher.Constraint("Equal", 2, 3))
sketch24.addConstraint(Sketcher.Constraint("Horizontal", 0, 3, 2, 3))
sketch24.addConstraint(Sketcher.Constraint("Horizontal", 1, 3, 3, 3))
sketch24.addConstraint(Sketcher.Constraint("Vertical", 0, 3, 1, 3))
sketch24.addConstraint(Sketcher.Constraint("Vertical", 2, 3, 3, 3))
sketch24.addConstraint(Sketcher.Constraint("Diameter", 0, 3.3))
sketch24.addConstraint(Sketcher.Constraint("DistanceX", 0, 3, -1, 1, 50.0))
sketch24.addConstraint(Sketcher.Constraint("DistanceY", 1, 3, 0, 3, 25.0))
sketch24.addConstraint(Sketcher.Constraint("DistanceY", -1, 1, 0, 3, 37.5))
sketch24.addConstraint(Sketcher.Constraint("DistanceX", 2, 3, -1, 1, 88.75))
pocket8 = doc.addObject("PartDesign::Pocket", "Pocket007")
body.addObject(pocket8)
pocket8.Profile = sketch24
pocket8.Length = 2
pocket8.Reversed = True

# Sketch on XZ plane
sketch25 = doc.addObject("Sketcher::SketchObject", "Sketch024")
body.addObject(sketch25)
sketch25.AttachmentSupport = (doc.XZ_Plane, [""])
sketch25.MapMode = "FlatFace"
sketch25.AttachmentOffset = App.Placement(App.Vector(0, 0, -5.5), App.Rotation())
add_polygon(sketch25, [(-55, 8), (-47, 8), (-47, 42), (-55, 42)])  # lines 0-3
sketch25.addConstraint(Sketcher.Constraint("Horizontal", 0))
sketch25.addConstraint(Sketcher.Constraint("Vertical", 1))
sketch25.addConstraint(Sketcher.Constraint("Horizontal", 2))
sketch25.addConstraint(Sketcher.Constraint("Vertical", 3))
sketch25.addConstraint(Sketcher.Constraint("DistanceY", 1, 1, 1, 2, 35.0))
sketch25.addConstraint(Sketcher.Constraint("DistanceX", 2, 2, -1, 1, 55.0))
sketch25.addConstraint(Sketcher.Constraint("DistanceY", -1, 1, 0, 2, 7.5))
sketch25.addConstraint(Sketcher.Constraint("DistanceX", 0, 1, 0, 2, 8.383))
pad13 = doc.addObject("PartDesign::Pad", "Pad012")
body.addObject(pad13)
pad13.Profile = sketch25
pad13.Length = 5.5

# Sketch on XZ plane
sketch26 = doc.addObject("Sketcher::SketchObject", "Sketch025")
body.addObject(sketch26)
sketch26.AttachmentSupport = (doc.XZ_Plane, [""])
sketch26.MapMode = "FlatFace"
sketch26.AttachmentOffset = App.Placement(App.Vector(0, 0, -7.5), App.Rotation())
sketch26.addGeometry(Part.Circle(App.Vector(-50, 12.5, 0), App.Vector(0, 0, 1), 1.6), False)
sketch26.addGeometry(Part.Circle(App.Vector(-50, 37.5, 0), App.Vector(0, 0, 1), 1.6), False)
sketch26.addConstraint(Sketcher.Constraint("Equal", 0, 1))
sketch26.addConstraint(Sketcher.Constraint("Vertical", 0, 3, 1, 3))
sketch26.addConstraint(Sketcher.Constraint("Diameter", 0, 3.3))
sketch26.addConstraint(Sketcher.Constraint("DistanceX", 0, 3, -1, 1, 50.0))
sketch26.addConstraint(Sketcher.Constraint("DistanceY", 0, 3, 1, 3, 25.0))
sketch26.addConstraint(Sketcher.Constraint("DistanceY", -1, 1, 0, 3, 12.5))
doc.recompute()
hole5 = doc.addObject("PartDesign::Hole", "Hole004")
body.addObject(hole5)
hole5.Profile = sketch26
hole5.ThreadType = "None"
hole5.Diameter = 3.3
hole5.DepthType = "Dimension"
hole5.Depth = 8
hole5.DrillPoint = "Angled"
hole5.DrillPointAngle = 118
hole5.Reversed = True

# Sketch on XZ plane
sketch27 = doc.addObject("Sketcher::SketchObject", "Sketch026")
body.addObject(sketch27)
sketch27.AttachmentSupport = (doc.XZ_Plane, [""])
sketch27.MapMode = "FlatFace"
sketch27.AttachmentOffset = App.Placement(App.Vector(0, 0, -7.5), App.Rotation())
sketch27.addGeometry(Part.Circle(App.Vector(-15.7, 46, 0), App.Vector(0, 0, 1), 1.6), False)
sketch27.addGeometry(Part.Circle(App.Vector(-15.7, 4, 0), App.Vector(0, 0, 1), 1.6), False)
sketch27.addConstraint(Sketcher.Constraint("Equal", 0, 1))
sketch27.addConstraint(Sketcher.Constraint("Vertical", 0, 3, 1, 3))
sketch27.addConstraint(Sketcher.Constraint("Diameter", 0, 3.3))
sketch27.addConstraint(Sketcher.Constraint("DistanceY", 1, 3, 0, 3, 42.0))
sketch27.addConstraint(Sketcher.Constraint("DistanceY", -1, 1, 0, 3, 46.0))
sketch27.addConstraint(Sketcher.Constraint("DistanceX", 0, 3, -1, 1, 15.675))
pocket9 = doc.addObject("PartDesign::Pocket", "Pocket008")
body.addObject(pocket9)
pocket9.Profile = sketch27
pocket9.Length = 10
pocket9.Reversed = True

# Sketch on XZ plane
sketch28 = doc.addObject("Sketcher::SketchObject", "Sketch027")
body.addObject(sketch28)
sketch28.AttachmentSupport = (doc.XZ_Plane, [""])
sketch28.MapMode = "FlatFace"
sketch28.AttachmentOffset = App.Placement(App.Vector(0, 0, -7.5), App.Rotation())
sketch28.addGeometry(Part.Circle(App.Vector(-7.2, 4, 0), App.Vector(0, 0, 1), 2.1), False)
sketch28.addGeometry(Part.Circle(App.Vector(-24.2, 46, 0), App.Vector(0, 0, 1), 2.9), False)
sketch28.addConstraint(Sketcher.Constraint("DistanceY", -1, 1, 0, 3, 4.0))
sketch28.addConstraint(Sketcher.Constraint("DistanceY", -1, 1, 1, 3, 46.0))
sketch28.addConstraint(Sketcher.Constraint("DistanceX", 1, 3, 0, 3, 17.0))
sketch28.addConstraint(Sketcher.Constraint("Diameter", 0, 4.2042))
sketch28.addConstraint(Sketcher.Constraint("Diameter", 1, 5.8346))
sketch28.addConstraint(Sketcher.Constraint("DistanceX", 0, 3, -1, 1, 7.175))
pad14 = doc.addObject("PartDesign::Pad", "Pad013")
body.addObject(pad14)
pad14.Profile = sketch28
pad14.Length = 7.5

# Sketch on XZ plane
sketch29 = doc.addObject("Sketcher::SketchObject", "Sketch028")
body.addObject(sketch29)
sketch29.AttachmentSupport = (doc.XZ_Plane, [""])
sketch29.MapMode = "FlatFace"
sketch29.AttachmentOffset = App.Placement(App.Vector(0, 0, -7.5), App.Rotation())
add_polygon(sketch29, [(-45, 8), (-45, 18), (-40, 18), (-40, 8)])  # lines 0-3
sketch29.addConstraint(Sketcher.Constraint("Vertical", 0))
sketch29.addConstraint(Sketcher.Constraint("Horizontal", 1))
sketch29.addConstraint(Sketcher.Constraint("Vertical", 2))
sketch29.addConstraint(Sketcher.Constraint("Horizontal", 3))
sketch29.addConstraint(Sketcher.Constraint("DistanceX", 1, 1, 1, 2, 5.0))
sketch29.addConstraint(Sketcher.Constraint("DistanceY", 0, 1, 0, 2, 10.0))
sketch29.addConstraint(Sketcher.Constraint("DistanceX", 0, 2, -1, 1, 45.0))
sketch29.addConstraint(Sketcher.Constraint("DistanceY", -1, 1, 0, 2, 17.5))
pad15 = doc.addObject("PartDesign::Pad", "Pad014")
body.addObject(pad15)
pad15.Profile = sketch29
pad15.Length = 17.5
pad15.Reversed = True

# Sketch on YZ plane
sketch30 = doc.addObject("Sketcher::SketchObject", "Sketch029")
body.addObject(sketch30)
sketch30.AttachmentSupport = (doc.YZ_Plane, [""])
sketch30.MapMode = "FlatFace"
sketch30.AttachmentOffset = App.Placement(App.Vector(0, 0, -45), App.Rotation())
sketch30.addGeometry(Part.Circle(App.Vector(20, 12.5, 0), App.Vector(0, 0, 1), 3.5), False)
sketch30.addConstraint(Sketcher.Constraint("Diameter", 0, 7.0))
sketch30.addConstraint(Sketcher.Constraint("DistanceX", -1, 1, 0, 3, 20.0))
sketch30.addConstraint(Sketcher.Constraint("DistanceY", -1, 1, 0, 3, 12.5))
doc.recompute()
hole6 = doc.addObject("PartDesign::Hole", "Hole005")
body.addObject(hole6)
hole6.Profile = sketch30
hole6.ThreadType = "None"
hole6.Diameter = 7
hole6.DepthType = "Dimension"
hole6.Depth = 8
hole6.DrillPoint = "Angled"
hole6.DrillPointAngle = 118
hole6.Reversed = True

# Sketch on XZ plane
sketch31 = doc.addObject("Sketcher::SketchObject", "Sketch030")
body.addObject(sketch31)
sketch31.AttachmentSupport = (doc.XZ_Plane, [""])
sketch31.MapMode = "FlatFace"
sketch31.AttachmentOffset = App.Placement(App.Vector(0, 0, -25), App.Rotation())
add_polygon(sketch31, [(-40, 32), (-45, 32), (-45, 42), (-40, 42)])  # lines 0-3
sketch31.addConstraint(Sketcher.Constraint("Horizontal", 0))
sketch31.addConstraint(Sketcher.Constraint("Vertical", 1))
sketch31.addConstraint(Sketcher.Constraint("Horizontal", 2))
sketch31.addConstraint(Sketcher.Constraint("Vertical", 3))
sketch31.addConstraint(Sketcher.Constraint("DistanceX", 0, 2, 0, 1, 5.0))
sketch31.addConstraint(Sketcher.Constraint("DistanceY", 1, 1, 1, 2, 10.0))
sketch31.addConstraint(Sketcher.Constraint("DistanceX", 0, 2, -1, 1, 45.0))
sketch31.addConstraint(Sketcher.Constraint("DistanceY", -1, 1, 0, 2, 32.5))
pocket10 = doc.addObject("PartDesign::Pocket", "Pocket009")
body.addObject(pocket10)
pocket10.Profile = sketch31
pocket10.Length = 17.5
pocket10.Reversed = True

# Sketch on XZ plane
sketch32 = doc.addObject("Sketcher::SketchObject", "Sketch031")
body.addObject(sketch32)
sketch32.AttachmentSupport = (doc.XZ_Plane, [""])
sketch32.MapMode = "FlatFace"
sketch32.AttachmentOffset = App.Placement(App.Vector(0, 0, -7.5), App.Rotation())
add_polygon(sketch32, [(-177, -42), (-320, -42), (-320, 112), (-177, 112)])  # lines 0-3
sketch32.addConstraint(Sketcher.Constraint("Horizontal", 0))
sketch32.addConstraint(Sketcher.Constraint("Vertical", 1))
sketch32.addConstraint(Sketcher.Constraint("Horizontal", 2))
sketch32.addConstraint(Sketcher.Constraint("Vertical", 3))
sketch32.addConstraint(Sketcher.Constraint("DistanceX", 0, 2, 0, 1, 143.613))
sketch32.addConstraint(Sketcher.Constraint("DistanceY", 1, 1, 1, 2, 153.982))
sketch32.addConstraint(Sketcher.Constraint("DistanceX", 0, 2, -1, 1, 320.285))
sketch32.addConstraint(Sketcher.Constraint("DistanceY", 0, 2, -1, 1, 41.697))
pocket11 = doc.addObject("PartDesign::Pocket", "Pocket010")
body.addObject(pocket11)
pocket11.Profile = sketch32
pocket11.Length = 170.5
pocket11.Reversed = True

# Sketch on YZ plane
sketch33 = doc.addObject("Sketcher::SketchObject", "Sketch032")
body.addObject(sketch33)
sketch33.AttachmentSupport = (doc.YZ_Plane, [""])
sketch33.MapMode = "FlatFace"
sketch33.AttachmentOffset = App.Placement(App.Vector(0, 0, -176.6721), App.Rotation())
add_polygon(sketch33, [(1.9, 1.9), (1.9, 5.6), (5.6, 5.6), (5.6, 1.9)])  # lines 0-3
add_polygon(sketch33, [(1.9, 44.4), (1.9, 48.1), (5.6, 48.1), (5.6, 44.4)])  # lines 4-7
sketch33.addConstraint(Sketcher.Constraint("Vertical", 0))
sketch33.addConstraint(Sketcher.Constraint("Horizontal", 1))
sketch33.addConstraint(Sketcher.Constraint("Vertical", 2))
sketch33.addConstraint(Sketcher.Constraint("Horizontal", 3))
sketch33.addConstraint(Sketcher.Constraint("Vertical", 4))
sketch33.addConstraint(Sketcher.Constraint("Horizontal", 5))
sketch33.addConstraint(Sketcher.Constraint("Vertical", 6))
sketch33.addConstraint(Sketcher.Constraint("Horizontal", 7))
sketch33.addConstraint(Sketcher.Constraint("Vertical", 3, 2, 4, 2))
sketch33.addConstraint(Sketcher.Constraint("Vertical", 2, 2, 5, 2))
sketch33.addConstraint(Sketcher.Constraint("Equal", 7, 0))
sketch33.addConstraint(Sketcher.Constraint("Equal", 2, 4))
sketch33.addConstraint(Sketcher.Constraint("DistanceX", 1, 1, 1, 2, 3.75))
sketch33.addConstraint(Sketcher.Constraint("DistanceY", 0, 2, 4, 2, 42.5))
sketch33.addConstraint(Sketcher.Constraint("DistanceX", -1, 1, 0, 2, 1.875))
sketch33.addConstraint(Sketcher.Constraint("DistanceY", -1, 1, 0, 2, 5.625))
pad16 = doc.addObject("PartDesign::Pad", "Pad015")
body.addObject(pad16)
pad16.Profile = sketch33
pad16.Length = 10
pad16.Reversed = True

doc.recompute()
